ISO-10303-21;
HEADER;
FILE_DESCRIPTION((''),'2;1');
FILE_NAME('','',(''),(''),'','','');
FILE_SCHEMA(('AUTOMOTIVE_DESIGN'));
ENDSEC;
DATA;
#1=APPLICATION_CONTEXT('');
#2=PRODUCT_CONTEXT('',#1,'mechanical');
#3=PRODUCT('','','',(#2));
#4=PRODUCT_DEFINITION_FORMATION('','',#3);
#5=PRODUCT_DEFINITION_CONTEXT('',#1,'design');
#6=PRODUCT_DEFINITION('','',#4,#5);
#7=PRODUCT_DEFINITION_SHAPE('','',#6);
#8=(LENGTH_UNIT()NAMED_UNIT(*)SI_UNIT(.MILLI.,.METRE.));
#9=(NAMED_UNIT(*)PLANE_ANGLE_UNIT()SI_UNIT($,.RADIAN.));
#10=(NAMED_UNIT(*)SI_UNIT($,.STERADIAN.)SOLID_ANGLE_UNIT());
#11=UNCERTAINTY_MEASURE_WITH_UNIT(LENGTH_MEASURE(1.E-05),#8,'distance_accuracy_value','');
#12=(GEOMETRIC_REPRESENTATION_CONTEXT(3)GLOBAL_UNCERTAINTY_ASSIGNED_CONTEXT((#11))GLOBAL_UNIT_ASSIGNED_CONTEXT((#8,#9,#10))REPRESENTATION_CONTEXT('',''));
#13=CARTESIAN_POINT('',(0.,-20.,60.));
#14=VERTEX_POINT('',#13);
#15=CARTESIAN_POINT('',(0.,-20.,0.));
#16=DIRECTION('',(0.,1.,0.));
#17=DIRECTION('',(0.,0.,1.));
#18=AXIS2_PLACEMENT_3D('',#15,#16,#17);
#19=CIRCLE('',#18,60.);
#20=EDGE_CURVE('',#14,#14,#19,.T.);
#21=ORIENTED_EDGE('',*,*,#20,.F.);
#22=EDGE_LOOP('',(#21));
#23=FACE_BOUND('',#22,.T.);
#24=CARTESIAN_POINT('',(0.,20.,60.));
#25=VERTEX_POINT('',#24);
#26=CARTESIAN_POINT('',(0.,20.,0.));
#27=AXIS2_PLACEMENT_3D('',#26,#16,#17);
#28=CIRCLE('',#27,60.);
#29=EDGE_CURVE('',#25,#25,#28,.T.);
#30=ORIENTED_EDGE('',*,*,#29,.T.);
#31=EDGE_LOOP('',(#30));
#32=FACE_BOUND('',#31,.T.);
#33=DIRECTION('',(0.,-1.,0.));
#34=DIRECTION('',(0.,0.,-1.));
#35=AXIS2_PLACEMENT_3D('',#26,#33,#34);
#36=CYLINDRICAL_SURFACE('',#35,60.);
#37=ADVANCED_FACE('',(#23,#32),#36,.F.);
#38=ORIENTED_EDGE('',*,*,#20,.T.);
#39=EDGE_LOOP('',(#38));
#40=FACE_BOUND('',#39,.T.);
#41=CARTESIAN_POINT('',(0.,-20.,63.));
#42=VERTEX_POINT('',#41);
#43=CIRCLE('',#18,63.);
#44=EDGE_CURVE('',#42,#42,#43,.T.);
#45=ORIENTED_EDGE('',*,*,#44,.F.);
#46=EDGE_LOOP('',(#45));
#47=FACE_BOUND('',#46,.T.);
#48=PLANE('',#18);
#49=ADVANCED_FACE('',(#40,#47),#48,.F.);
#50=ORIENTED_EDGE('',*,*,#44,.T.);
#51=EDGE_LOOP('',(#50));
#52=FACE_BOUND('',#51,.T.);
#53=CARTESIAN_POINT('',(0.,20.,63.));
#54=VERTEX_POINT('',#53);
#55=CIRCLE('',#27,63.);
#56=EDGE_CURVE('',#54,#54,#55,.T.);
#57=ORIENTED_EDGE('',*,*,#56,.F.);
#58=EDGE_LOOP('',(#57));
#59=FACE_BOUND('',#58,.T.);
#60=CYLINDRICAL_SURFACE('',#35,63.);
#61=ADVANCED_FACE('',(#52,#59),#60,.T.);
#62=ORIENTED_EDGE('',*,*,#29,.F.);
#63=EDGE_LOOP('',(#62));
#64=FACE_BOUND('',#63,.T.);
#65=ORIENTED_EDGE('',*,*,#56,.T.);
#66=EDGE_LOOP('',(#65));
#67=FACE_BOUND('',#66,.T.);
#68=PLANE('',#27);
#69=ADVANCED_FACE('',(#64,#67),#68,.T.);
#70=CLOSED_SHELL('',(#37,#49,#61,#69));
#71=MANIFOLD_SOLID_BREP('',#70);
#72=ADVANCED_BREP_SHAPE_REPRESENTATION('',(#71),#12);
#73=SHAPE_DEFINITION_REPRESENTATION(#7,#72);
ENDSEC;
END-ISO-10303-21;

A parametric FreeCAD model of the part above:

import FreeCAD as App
import Part
import Sketcher

V = App.Vector
Q = App.Units.Quantity

doc = App.newDocument("Part")
body = doc.addObject("PartDesign::Body", "Body")

# Sketch on XZ plane
sketch1 = body.newObject("Sketcher::SketchObject", "Sketch")
sketch1.AttachmentSupport = (doc.getObject("XZ_Plane"), [""])
sketch1.MapMode = "FlatFace"
sketch1.addGeometry([
    Part.Circle(V(0, 0, 0), V(0, 0, 1), 63),
    Part.Circle(V(0, 0, 0), V(0, 0, 1), 60),
], False)
sketch1.addConstraint([
    Sketcher.Constraint("Coincident", 0, 3, -1, 1),
    Sketcher.Constraint("Coincident", 1, 3, -1, 1),
    Sketcher.Constraint("Diameter", 0, Q("126 mm")),
    Sketcher.Constraint("Diameter", 1, Q("120 mm")),
])
pad1 = body.newObject("PartDesign::Pad", "Pad")
pad1.Profile = sketch1
pad1.Length = 40
pad1.Midplane = True

doc.recompute()
